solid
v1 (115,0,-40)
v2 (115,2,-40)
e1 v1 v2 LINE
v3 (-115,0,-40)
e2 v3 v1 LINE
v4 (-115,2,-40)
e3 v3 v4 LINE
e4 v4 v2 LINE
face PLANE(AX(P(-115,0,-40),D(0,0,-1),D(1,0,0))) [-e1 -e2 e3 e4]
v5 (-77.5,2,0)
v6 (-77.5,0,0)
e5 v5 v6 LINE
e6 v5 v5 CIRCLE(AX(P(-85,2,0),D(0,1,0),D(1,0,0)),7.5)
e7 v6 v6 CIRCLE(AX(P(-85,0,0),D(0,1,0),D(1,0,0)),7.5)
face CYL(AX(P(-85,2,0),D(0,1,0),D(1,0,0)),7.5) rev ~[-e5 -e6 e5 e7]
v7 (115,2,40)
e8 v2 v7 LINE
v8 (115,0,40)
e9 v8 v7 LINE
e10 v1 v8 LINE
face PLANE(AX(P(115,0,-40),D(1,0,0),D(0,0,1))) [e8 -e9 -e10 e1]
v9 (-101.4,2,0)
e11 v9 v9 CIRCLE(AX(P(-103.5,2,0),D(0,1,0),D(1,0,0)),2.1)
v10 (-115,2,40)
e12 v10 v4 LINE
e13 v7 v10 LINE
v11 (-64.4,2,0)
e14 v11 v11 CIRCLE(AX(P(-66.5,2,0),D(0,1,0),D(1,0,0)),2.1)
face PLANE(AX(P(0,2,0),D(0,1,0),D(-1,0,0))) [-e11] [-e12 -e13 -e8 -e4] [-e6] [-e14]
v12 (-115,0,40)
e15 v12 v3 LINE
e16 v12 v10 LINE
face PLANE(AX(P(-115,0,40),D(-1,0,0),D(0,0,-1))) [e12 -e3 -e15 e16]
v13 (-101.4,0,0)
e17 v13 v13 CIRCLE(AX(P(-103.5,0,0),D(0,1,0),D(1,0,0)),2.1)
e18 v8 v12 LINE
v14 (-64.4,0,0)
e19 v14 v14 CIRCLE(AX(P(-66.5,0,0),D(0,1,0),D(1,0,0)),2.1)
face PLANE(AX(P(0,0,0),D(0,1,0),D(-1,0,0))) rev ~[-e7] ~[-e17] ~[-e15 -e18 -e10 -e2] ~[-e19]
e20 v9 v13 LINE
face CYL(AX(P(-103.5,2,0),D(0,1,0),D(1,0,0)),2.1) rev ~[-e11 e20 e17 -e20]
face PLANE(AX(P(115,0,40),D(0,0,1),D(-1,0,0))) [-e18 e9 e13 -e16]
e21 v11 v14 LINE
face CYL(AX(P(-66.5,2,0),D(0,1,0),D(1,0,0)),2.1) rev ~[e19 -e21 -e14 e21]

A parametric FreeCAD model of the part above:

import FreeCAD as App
import Part
import Sketcher
from FreeCAD import Vector
Q = App.Units.Quantity


def add_polygon(sketch, points):
    """Adds a closed chain of lines whose ends are joined by coincident constraints."""
    first, n = sketch.GeometryCount, len(points)
    for a, b in zip(points, points[1:] + points[:1]):
        sketch.addGeometry(Part.LineSegment(App.Vector(*a, 0), App.Vector(*b, 0)), False)
    for i in range(n):
        sketch.addConstraint(Sketcher.Constraint("Coincident", first + i, 2, first + (i + 1) % n, 1))

doc = App.newDocument("Part")
body = doc.addObject("PartDesign::Body", "Body")

sketch1 = body.newObject("Sketcher::SketchObject", "Sketch")
sketch1.AttachmentSupport = (doc.getObject("XZ_Plane"), [""])
sketch1.MapMode = "FlatFace"
add_polygon(sketch1, [(-115, 40), (115, 40), (115, -40), (-115, -40)])
sketch1.addConstraint(Sketcher.Constraint("Horizontal", 0))
sketch1.addConstraint(Sketcher.Constraint("Vertical", 1))
sketch1.addConstraint(Sketcher.Constraint("Horizontal", 2))
sketch1.addConstraint(Sketcher.Constraint("Vertical", 3))
sketch1.addConstraint(Sketcher.Constraint("Symmetric", 0, 2, 2, 2, -1, 1))
sketch1.addConstraint(Sketcher.Constraint("DistanceX", 0, 1, 0, 2, Q("230 mm")))
sketch1.addConstraint(Sketcher.Constraint("DistanceY", 1, 2, 1, 1, Q("80 mm")))
pad1 = body.newObject("PartDesign::Pad", "Pad")
pad1.Profile = sketch1
pad1.Length = 2
pad1.Reversed = True

sketch2 = body.newObject("Sketcher::SketchObject", "Sketch001")
sketch2.AttachmentSupport = (doc.getObject("XZ_Plane"), [""])
sketch2.MapMode = "FlatFace"
sketch2.AttachmentOffset = App.Placement(Vector(0, 0, -2), App.Rotation())
sketch2.addGeometry(Part.Circle(Vector(-85, 0, 0), Vector(0, 0, 1), 7.5), False)
sketch2.addGeometry(Part.Circle(Vector(-103.5, 0, 0), Vector(0, 0, 1), 2.1), False)
sketch2.addGeometry(Part.Circle(Vector(-66.5, 0, 0), Vector(0, 0, 1), 2.1), False)
sketch2.addConstraint(Sketcher.Constraint("Equal", 1, 2))
sketch2.addConstraint(Sketcher.Constraint("PointOnObject", 0, 3, -1))
sketch2.addConstraint(Sketcher.Constraint("PointOnObject", 1, 3, -1))
sketch2.addConstraint(Sketcher.Constraint("PointOnObject", 2, 3, -1))
sketch2.addConstraint(Sketcher.Constraint("Diameter", 0, Q("15 mm")))
sketch2.addConstraint(Sketcher.Constraint("Diameter", 1, Q("4.2 mm")))
sketch2.addConstraint(Sketcher.Constraint("DistanceX", 0, 3, -1, 1, Q("85 mm")))
sketch2.addConstraint(Sketcher.Constraint("DistanceX", 1, 3, 2, 3, Q("37 mm")))
sketch2.addConstraint(Sketcher.Constraint("DistanceX", 1, 3, 0, 3, Q("18.5 mm")))
pocket1 = body.newObject("PartDesign::Pocket", "Pocket")
pocket1.Profile = sketch2
pocket1.Length = 8
pocket1.Reversed = True

doc.recompute()
